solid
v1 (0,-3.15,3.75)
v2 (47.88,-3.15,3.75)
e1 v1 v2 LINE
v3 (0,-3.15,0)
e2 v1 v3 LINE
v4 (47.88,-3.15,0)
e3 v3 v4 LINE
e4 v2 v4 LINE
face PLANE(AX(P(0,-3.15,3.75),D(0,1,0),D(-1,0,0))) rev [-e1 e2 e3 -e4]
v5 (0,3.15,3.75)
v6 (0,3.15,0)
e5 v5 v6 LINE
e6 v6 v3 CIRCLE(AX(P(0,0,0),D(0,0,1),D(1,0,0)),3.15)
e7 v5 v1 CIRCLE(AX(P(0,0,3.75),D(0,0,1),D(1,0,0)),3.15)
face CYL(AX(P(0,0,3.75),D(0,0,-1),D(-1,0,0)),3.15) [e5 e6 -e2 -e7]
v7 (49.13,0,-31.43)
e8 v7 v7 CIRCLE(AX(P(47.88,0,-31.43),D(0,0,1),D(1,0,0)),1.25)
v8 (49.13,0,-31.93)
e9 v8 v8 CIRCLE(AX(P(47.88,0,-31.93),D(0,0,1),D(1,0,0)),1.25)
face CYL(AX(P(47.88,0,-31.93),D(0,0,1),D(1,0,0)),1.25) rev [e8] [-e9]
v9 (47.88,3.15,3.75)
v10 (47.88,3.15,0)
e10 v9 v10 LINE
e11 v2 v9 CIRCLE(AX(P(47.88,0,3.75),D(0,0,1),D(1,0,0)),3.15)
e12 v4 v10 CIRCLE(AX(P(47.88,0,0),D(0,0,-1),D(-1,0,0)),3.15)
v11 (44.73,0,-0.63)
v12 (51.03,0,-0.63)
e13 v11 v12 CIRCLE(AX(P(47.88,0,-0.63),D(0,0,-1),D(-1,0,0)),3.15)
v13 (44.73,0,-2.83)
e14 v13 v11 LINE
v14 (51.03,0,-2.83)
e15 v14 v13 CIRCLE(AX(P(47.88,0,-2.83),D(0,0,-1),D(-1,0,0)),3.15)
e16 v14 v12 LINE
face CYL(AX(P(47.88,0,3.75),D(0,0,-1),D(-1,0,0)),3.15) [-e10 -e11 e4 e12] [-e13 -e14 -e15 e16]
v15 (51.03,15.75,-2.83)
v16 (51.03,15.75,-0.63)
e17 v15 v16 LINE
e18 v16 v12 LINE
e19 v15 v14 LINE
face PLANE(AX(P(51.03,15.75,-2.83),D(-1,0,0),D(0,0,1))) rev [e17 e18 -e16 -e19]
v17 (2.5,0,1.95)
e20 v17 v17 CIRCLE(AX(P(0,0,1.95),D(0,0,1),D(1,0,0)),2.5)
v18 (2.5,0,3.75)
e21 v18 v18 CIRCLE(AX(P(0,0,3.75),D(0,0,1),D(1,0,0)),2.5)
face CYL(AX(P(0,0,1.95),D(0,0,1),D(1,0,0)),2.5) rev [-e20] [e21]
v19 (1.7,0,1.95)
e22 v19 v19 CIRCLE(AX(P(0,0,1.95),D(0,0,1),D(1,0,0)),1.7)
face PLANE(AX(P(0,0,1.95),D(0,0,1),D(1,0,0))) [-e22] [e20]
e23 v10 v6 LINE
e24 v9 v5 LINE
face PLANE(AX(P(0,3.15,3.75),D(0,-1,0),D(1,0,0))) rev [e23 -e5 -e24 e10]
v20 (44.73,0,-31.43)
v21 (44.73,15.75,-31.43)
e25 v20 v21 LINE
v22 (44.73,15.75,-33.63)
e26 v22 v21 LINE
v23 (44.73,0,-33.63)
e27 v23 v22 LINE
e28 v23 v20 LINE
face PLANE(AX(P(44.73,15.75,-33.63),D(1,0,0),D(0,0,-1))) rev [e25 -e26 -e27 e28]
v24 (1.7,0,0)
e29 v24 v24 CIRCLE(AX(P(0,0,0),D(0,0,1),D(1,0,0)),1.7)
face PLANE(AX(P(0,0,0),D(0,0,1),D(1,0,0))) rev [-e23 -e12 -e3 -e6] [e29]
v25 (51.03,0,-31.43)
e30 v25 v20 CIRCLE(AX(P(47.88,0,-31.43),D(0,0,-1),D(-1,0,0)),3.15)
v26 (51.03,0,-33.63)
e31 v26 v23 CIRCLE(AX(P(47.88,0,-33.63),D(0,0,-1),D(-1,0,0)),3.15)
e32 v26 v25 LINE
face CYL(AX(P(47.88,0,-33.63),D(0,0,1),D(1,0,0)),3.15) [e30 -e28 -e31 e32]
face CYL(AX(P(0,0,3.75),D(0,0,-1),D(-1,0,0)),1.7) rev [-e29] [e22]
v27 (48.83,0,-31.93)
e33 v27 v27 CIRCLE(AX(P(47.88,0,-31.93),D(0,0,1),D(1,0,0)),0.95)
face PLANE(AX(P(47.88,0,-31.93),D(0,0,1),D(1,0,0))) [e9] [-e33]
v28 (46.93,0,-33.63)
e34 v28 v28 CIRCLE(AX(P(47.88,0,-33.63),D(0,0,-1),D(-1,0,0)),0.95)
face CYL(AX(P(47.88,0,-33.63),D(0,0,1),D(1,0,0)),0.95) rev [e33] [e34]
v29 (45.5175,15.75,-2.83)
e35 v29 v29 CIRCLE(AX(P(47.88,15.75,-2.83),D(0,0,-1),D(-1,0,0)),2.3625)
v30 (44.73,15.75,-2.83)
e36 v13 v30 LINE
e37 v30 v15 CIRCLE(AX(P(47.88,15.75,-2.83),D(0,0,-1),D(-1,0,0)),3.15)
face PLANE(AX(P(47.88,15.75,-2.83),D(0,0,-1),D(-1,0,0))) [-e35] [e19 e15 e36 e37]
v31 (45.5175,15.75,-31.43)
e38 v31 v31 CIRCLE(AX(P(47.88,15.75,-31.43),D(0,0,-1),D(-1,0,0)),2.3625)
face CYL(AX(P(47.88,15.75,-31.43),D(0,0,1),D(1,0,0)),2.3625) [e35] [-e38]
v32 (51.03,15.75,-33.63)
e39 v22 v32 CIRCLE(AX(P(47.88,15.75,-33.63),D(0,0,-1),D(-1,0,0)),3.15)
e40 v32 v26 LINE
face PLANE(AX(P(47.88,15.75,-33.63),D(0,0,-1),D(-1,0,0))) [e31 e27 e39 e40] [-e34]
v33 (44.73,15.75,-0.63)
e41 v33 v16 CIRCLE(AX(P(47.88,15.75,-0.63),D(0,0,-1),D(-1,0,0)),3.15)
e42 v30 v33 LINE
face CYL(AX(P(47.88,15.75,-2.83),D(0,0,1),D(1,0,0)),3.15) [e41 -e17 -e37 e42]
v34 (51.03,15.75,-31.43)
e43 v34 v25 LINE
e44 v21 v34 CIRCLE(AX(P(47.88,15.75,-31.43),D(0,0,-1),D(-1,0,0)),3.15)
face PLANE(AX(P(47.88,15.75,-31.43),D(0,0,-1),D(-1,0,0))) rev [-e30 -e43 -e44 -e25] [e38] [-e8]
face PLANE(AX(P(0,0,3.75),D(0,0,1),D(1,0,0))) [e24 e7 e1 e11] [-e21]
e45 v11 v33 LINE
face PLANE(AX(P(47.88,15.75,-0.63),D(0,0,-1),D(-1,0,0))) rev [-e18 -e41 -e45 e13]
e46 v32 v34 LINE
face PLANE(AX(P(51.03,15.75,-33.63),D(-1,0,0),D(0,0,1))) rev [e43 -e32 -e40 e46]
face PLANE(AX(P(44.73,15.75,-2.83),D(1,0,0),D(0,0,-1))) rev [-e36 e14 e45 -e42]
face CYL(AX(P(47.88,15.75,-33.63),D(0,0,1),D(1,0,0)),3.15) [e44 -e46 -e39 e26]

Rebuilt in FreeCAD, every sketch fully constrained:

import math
import FreeCAD as App
import Part
import Sketcher
from FreeCAD import Vector

doc = App.newDocument("Part")
body = doc.addObject("PartDesign::Body", "Body")

sketch1 = body.newObject("Sketcher::SketchObject", "Sketch")
sketch1.AttachmentSupport = (doc.getObject("XY_Plane"), [""])
sketch1.MapMode = "FlatFace"
sketch1.addGeometry(Part.LineSegment(Vector(47.9, 3.1, 0), Vector(0, 3.1, 0)), False)
sketch1.addGeometry(Part.ArcOfCircle(Part.Circle(Vector(0, 0, 0), Vector(0, 0, 1), 3.1), math.radians(90), math.radians(270)), False)
sketch1.addGeometry(Part.LineSegment(Vector(0, -3.1, 0), Vector(47.9, -3.1, 0)), False)
sketch1.addGeometry(Part.ArcOfCircle(Part.Circle(Vector(47.9, 0, 0), Vector(0, 0, 1), 3.1), math.radians(-90), math.radians(90)), False)
sketch1.addGeometry(Part.Circle(Vector(0, 0, 0), Vector(0, 0, 1), 1.7), False)
sketch1.addConstraint(Sketcher.Constraint("Tangent", 0, 2, 1, 1))
sketch1.addConstraint(Sketcher.Constraint("Tangent", 1, 2, 2, 1))
sketch1.addConstraint(Sketcher.Constraint("Tangent", 2, 2, 3, 1))
sketch1.addConstraint(Sketcher.Constraint("Tangent", 3, 2, 0, 1))
sketch1.addConstraint(Sketcher.Constraint("Horizontal", 0))
sketch1.addConstraint(Sketcher.Constraint("Horizontal", 2))
sketch1.addConstraint(Sketcher.Constraint("Coincident", 1, 3, -1, 1))
sketch1.addConstraint(Sketcher.Constraint("Coincident", 4, 3, -1, 1))
sketch1.addConstraint(Sketcher.Constraint("Diameter", 4, 3.4))
sketch1.addConstraint(Sketcher.Constraint("Radius", 1, 3.15))
sketch1.addConstraint(Sketcher.Constraint("DistanceX", 0, 2, 0, 1, 47.88))
pad1 = body.newObject("PartDesign::Pad", "Pad")
pad1.Profile = sketch1
pad1.Length = 3.75

sketch2 = body.newObject("Sketcher::SketchObject", "Sketch001")
sketch2.AttachmentSupport = (doc.getObject("XY_Plane"), [""])
sketch2.MapMode = "FlatFace"
sketch2.AttachmentOffset = App.Placement(Vector(0, 0, -0.63), App.Rotation())
sketch2.addGeometry(Part.Circle(Vector(47.9, 0, 0), Vector(0, 0, 1), 3.1), False)
sketch2.addConstraint(Sketcher.Constraint("PointOnObject", 0, 3, -1))
sketch2.addConstraint(Sketcher.Constraint("Diameter", 0, 6.3))
sketch2.addConstraint(Sketcher.Constraint("DistanceX", -1, 1, 0, 3, 47.88))
pad2 = body.newObject("PartDesign::Pad", "Pad001")
pad2.Profile = sketch2
pad2.Length = 0.63

sketch3 = body.newObject("Sketcher::SketchObject", "Sketch002")
sketch3.AttachmentSupport = (doc.getObject("XY_Plane"), [""])
sketch3.MapMode = "FlatFace"
sketch3.AttachmentOffset = App.Placement(Vector(0, 0, 3.75), App.Rotation())
sketch3.addGeometry(Part.Circle(Vector(0, 0, 0), Vector(0, 0, 1), 2.5), False)
sketch3.addConstraint(Sketcher.Constraint("Coincident", 0, 3, -1, 1))
sketch3.addConstraint(Sketcher.Constraint("Diameter", 0, 5.0))
pocket1 = body.newObject("PartDesign::Pocket", "Pocket")
pocket1.Profile = sketch3
pocket1.Length = 1.8

sketch4 = body.newObject("Sketcher::SketchObject", "Sketch003")
sketch4.AttachmentSupport = (doc.getObject("XY_Plane"), [""])
sketch4.MapMode = "FlatFace"
sketch4.AttachmentOffset = App.Placement(Vector(0, 0, -2.83), App.Rotation())
sketch4.addGeometry(Part.LineSegment(Vector(51, 15.8, 0), Vector(51, 0, 0)), False)
sketch4.addGeometry(Part.ArcOfCircle(Part.Circle(Vector(47.9, 0, 0), Vector(0, 0, 1), 3.1), math.radians(180), math.radians(360)), False)
sketch4.addGeometry(Part.LineSegment(Vector(44.7, 0, 0), Vector(44.7, 15.8, 0)), False)
sketch4.addGeometry(Part.ArcOfCircle(Part.Circle(Vector(47.9, 15.8, 0), Vector(0, 0, 1), 3.1), math.radians(0), math.radians(180)), False)
sketch4.addConstraint(Sketcher.Constraint("Tangent", 0, 2, 1, 2))
sketch4.addConstraint(Sketcher.Constraint("Tangent", 1, 1, 2, 1))
sketch4.addConstraint(Sketcher.Constraint("Tangent", 2, 2, 3, 2))
sketch4.addConstraint(Sketcher.Constraint("Tangent", 3, 1, 0, 1))
sketch4.addConstraint(Sketcher.Constraint("Vertical", 0))
sketch4.addConstraint(Sketcher.Constraint("Vertical", 2))
sketch4.addConstraint(Sketcher.Constraint("PointOnObject", 1, 3, -1))
sketch4.addConstraint(Sketcher.Constraint("Radius", 1, 3.15))
sketch4.addConstraint(Sketcher.Constraint("DistanceY", 0, 2, 0, 1, 15.75))
sketch4.addConstraint(Sketcher.Constraint("DistanceX", -1, 1, 1, 3, 47.88))
pad3 = body.newObject("PartDesign::Pad", "Pad002")
pad3.Profile = sketch4
pad3.Length = 2.2

sketch5 = body.newObject("Sketcher::SketchObject", "Sketch004")
sketch5.AttachmentSupport = (doc.getObject("XY_Plane"), [""])
sketch5.MapMode = "FlatFace"
sketch5.AttachmentOffset = App.Placement(Vector(0, 0, -2.83), App.Rotation())
sketch5.addGeometry(Part.Circle(Vector(47.9, 15.8, 0), Vector(0, 0, 1), 2.4), False)
sketch5.addConstraint(Sketcher.Constraint("Diameter", 0, 4.725))
sketch5.addConstraint(Sketcher.Constraint("DistanceX", -1, 1, 0, 3, 47.88))
sketch5.addConstraint(Sketcher.Constraint("DistanceY", -1, 1, 0, 3, 15.75))
pad4 = body.newObject("PartDesign::Pad", "Pad003")
pad4.Profile = sketch5
pad4.Length = 28.6
pad4.Reversed = True

sketch6 = body.newObject("Sketcher::SketchObject", "Sketch005")
sketch6.AttachmentSupport = (doc.getObject("XY_Plane"), [""])
sketch6.MapMode = "FlatFace"
sketch6.AttachmentOffset = App.Placement(Vector(0, 0, -33.63), App.Rotation())
sketch6.addGeometry(Part.LineSegment(Vector(51, 15.8, 0), Vector(51, 0, 0)), False)
sketch6.addGeometry(Part.ArcOfCircle(Part.Circle(Vector(47.9, 0, 0), Vector(0, 0, 1), 3.1), math.radians(180), math.radians(360)), False)
sketch6.addGeometry(Part.LineSegment(Vector(44.7, 0, 0), Vector(44.7, 15.8, 0)), False)
sketch6.addGeometry(Part.ArcOfCircle(Part.Circle(Vector(47.9, 15.8, 0), Vector(0, 0, 1), 3.1), math.radians(0), math.radians(180)), False)
sketch6.addGeometry(Part.Circle(Vector(47.9, 0, 0), Vector(0, 0, 1), 0.9), False)
sketch6.addConstraint(Sketcher.Constraint("Tangent", 0, 2, 1, 2))
sketch6.addConstraint(Sketcher.Constraint("Tangent", 1, 1, 2, 1))
sketch6.addConstraint(Sketcher.Constraint("Tangent", 2, 2, 3, 2))
sketch6.addConstraint(Sketcher.Constraint("Tangent", 3, 1, 0, 1))
sketch6.addConstraint(Sketcher.Constraint("Vertical", 0))
sketch6.addConstraint(Sketcher.Constraint("Vertical", 2))
sketch6.addConstraint(Sketcher.Constraint("Coincident", 4, 3, 1, 3))
sketch6.addConstraint(Sketcher.Constraint("PointOnObject", 1, 3, -1))
sketch6.addConstraint(Sketcher.Constraint("Diameter", 4, 1.9))
sketch6.addConstraint(Sketcher.Constraint("Radius", 1, 3.15))
sketch6.addConstraint(Sketcher.Constraint("DistanceY", 0, 2, 0, 1, 15.75))
sketch6.addConstraint(Sketcher.Constraint("DistanceX", -1, 1, 1, 3, 47.88))
pad5 = body.newObject("PartDesign::Pad", "Pad004")
pad5.Profile = sketch6
pad5.Length = 2.2

sketch7 = body.newObject("Sketcher::SketchObject", "Sketch006")
sketch7.AttachmentSupport = (doc.getObject("XY_Plane"), [""])
sketch7.MapMode = "FlatFace"
sketch7.AttachmentOffset = App.Placement(Vector(0, 0, -31.43), App.Rotation())
sketch7.addGeometry(Part.Circle(Vector(47.9, 0, 0), Vector(0, 0, 1), 1.2), False)
sketch7.addConstraint(Sketcher.Constraint("PointOnObject", 0, 3, -1))
sketch7.addConstraint(Sketcher.Constraint("Diameter", 0, 2.5))
sketch7.addConstraint(Sketcher.Constraint("DistanceX", -1, 1, 0, 3, 47.88))
pocket2 = body.newObject("PartDesign::Pocket", "Pocket001")
pocket2.Profile = sketch7
pocket2.Length = 0.5

doc.recompute()
